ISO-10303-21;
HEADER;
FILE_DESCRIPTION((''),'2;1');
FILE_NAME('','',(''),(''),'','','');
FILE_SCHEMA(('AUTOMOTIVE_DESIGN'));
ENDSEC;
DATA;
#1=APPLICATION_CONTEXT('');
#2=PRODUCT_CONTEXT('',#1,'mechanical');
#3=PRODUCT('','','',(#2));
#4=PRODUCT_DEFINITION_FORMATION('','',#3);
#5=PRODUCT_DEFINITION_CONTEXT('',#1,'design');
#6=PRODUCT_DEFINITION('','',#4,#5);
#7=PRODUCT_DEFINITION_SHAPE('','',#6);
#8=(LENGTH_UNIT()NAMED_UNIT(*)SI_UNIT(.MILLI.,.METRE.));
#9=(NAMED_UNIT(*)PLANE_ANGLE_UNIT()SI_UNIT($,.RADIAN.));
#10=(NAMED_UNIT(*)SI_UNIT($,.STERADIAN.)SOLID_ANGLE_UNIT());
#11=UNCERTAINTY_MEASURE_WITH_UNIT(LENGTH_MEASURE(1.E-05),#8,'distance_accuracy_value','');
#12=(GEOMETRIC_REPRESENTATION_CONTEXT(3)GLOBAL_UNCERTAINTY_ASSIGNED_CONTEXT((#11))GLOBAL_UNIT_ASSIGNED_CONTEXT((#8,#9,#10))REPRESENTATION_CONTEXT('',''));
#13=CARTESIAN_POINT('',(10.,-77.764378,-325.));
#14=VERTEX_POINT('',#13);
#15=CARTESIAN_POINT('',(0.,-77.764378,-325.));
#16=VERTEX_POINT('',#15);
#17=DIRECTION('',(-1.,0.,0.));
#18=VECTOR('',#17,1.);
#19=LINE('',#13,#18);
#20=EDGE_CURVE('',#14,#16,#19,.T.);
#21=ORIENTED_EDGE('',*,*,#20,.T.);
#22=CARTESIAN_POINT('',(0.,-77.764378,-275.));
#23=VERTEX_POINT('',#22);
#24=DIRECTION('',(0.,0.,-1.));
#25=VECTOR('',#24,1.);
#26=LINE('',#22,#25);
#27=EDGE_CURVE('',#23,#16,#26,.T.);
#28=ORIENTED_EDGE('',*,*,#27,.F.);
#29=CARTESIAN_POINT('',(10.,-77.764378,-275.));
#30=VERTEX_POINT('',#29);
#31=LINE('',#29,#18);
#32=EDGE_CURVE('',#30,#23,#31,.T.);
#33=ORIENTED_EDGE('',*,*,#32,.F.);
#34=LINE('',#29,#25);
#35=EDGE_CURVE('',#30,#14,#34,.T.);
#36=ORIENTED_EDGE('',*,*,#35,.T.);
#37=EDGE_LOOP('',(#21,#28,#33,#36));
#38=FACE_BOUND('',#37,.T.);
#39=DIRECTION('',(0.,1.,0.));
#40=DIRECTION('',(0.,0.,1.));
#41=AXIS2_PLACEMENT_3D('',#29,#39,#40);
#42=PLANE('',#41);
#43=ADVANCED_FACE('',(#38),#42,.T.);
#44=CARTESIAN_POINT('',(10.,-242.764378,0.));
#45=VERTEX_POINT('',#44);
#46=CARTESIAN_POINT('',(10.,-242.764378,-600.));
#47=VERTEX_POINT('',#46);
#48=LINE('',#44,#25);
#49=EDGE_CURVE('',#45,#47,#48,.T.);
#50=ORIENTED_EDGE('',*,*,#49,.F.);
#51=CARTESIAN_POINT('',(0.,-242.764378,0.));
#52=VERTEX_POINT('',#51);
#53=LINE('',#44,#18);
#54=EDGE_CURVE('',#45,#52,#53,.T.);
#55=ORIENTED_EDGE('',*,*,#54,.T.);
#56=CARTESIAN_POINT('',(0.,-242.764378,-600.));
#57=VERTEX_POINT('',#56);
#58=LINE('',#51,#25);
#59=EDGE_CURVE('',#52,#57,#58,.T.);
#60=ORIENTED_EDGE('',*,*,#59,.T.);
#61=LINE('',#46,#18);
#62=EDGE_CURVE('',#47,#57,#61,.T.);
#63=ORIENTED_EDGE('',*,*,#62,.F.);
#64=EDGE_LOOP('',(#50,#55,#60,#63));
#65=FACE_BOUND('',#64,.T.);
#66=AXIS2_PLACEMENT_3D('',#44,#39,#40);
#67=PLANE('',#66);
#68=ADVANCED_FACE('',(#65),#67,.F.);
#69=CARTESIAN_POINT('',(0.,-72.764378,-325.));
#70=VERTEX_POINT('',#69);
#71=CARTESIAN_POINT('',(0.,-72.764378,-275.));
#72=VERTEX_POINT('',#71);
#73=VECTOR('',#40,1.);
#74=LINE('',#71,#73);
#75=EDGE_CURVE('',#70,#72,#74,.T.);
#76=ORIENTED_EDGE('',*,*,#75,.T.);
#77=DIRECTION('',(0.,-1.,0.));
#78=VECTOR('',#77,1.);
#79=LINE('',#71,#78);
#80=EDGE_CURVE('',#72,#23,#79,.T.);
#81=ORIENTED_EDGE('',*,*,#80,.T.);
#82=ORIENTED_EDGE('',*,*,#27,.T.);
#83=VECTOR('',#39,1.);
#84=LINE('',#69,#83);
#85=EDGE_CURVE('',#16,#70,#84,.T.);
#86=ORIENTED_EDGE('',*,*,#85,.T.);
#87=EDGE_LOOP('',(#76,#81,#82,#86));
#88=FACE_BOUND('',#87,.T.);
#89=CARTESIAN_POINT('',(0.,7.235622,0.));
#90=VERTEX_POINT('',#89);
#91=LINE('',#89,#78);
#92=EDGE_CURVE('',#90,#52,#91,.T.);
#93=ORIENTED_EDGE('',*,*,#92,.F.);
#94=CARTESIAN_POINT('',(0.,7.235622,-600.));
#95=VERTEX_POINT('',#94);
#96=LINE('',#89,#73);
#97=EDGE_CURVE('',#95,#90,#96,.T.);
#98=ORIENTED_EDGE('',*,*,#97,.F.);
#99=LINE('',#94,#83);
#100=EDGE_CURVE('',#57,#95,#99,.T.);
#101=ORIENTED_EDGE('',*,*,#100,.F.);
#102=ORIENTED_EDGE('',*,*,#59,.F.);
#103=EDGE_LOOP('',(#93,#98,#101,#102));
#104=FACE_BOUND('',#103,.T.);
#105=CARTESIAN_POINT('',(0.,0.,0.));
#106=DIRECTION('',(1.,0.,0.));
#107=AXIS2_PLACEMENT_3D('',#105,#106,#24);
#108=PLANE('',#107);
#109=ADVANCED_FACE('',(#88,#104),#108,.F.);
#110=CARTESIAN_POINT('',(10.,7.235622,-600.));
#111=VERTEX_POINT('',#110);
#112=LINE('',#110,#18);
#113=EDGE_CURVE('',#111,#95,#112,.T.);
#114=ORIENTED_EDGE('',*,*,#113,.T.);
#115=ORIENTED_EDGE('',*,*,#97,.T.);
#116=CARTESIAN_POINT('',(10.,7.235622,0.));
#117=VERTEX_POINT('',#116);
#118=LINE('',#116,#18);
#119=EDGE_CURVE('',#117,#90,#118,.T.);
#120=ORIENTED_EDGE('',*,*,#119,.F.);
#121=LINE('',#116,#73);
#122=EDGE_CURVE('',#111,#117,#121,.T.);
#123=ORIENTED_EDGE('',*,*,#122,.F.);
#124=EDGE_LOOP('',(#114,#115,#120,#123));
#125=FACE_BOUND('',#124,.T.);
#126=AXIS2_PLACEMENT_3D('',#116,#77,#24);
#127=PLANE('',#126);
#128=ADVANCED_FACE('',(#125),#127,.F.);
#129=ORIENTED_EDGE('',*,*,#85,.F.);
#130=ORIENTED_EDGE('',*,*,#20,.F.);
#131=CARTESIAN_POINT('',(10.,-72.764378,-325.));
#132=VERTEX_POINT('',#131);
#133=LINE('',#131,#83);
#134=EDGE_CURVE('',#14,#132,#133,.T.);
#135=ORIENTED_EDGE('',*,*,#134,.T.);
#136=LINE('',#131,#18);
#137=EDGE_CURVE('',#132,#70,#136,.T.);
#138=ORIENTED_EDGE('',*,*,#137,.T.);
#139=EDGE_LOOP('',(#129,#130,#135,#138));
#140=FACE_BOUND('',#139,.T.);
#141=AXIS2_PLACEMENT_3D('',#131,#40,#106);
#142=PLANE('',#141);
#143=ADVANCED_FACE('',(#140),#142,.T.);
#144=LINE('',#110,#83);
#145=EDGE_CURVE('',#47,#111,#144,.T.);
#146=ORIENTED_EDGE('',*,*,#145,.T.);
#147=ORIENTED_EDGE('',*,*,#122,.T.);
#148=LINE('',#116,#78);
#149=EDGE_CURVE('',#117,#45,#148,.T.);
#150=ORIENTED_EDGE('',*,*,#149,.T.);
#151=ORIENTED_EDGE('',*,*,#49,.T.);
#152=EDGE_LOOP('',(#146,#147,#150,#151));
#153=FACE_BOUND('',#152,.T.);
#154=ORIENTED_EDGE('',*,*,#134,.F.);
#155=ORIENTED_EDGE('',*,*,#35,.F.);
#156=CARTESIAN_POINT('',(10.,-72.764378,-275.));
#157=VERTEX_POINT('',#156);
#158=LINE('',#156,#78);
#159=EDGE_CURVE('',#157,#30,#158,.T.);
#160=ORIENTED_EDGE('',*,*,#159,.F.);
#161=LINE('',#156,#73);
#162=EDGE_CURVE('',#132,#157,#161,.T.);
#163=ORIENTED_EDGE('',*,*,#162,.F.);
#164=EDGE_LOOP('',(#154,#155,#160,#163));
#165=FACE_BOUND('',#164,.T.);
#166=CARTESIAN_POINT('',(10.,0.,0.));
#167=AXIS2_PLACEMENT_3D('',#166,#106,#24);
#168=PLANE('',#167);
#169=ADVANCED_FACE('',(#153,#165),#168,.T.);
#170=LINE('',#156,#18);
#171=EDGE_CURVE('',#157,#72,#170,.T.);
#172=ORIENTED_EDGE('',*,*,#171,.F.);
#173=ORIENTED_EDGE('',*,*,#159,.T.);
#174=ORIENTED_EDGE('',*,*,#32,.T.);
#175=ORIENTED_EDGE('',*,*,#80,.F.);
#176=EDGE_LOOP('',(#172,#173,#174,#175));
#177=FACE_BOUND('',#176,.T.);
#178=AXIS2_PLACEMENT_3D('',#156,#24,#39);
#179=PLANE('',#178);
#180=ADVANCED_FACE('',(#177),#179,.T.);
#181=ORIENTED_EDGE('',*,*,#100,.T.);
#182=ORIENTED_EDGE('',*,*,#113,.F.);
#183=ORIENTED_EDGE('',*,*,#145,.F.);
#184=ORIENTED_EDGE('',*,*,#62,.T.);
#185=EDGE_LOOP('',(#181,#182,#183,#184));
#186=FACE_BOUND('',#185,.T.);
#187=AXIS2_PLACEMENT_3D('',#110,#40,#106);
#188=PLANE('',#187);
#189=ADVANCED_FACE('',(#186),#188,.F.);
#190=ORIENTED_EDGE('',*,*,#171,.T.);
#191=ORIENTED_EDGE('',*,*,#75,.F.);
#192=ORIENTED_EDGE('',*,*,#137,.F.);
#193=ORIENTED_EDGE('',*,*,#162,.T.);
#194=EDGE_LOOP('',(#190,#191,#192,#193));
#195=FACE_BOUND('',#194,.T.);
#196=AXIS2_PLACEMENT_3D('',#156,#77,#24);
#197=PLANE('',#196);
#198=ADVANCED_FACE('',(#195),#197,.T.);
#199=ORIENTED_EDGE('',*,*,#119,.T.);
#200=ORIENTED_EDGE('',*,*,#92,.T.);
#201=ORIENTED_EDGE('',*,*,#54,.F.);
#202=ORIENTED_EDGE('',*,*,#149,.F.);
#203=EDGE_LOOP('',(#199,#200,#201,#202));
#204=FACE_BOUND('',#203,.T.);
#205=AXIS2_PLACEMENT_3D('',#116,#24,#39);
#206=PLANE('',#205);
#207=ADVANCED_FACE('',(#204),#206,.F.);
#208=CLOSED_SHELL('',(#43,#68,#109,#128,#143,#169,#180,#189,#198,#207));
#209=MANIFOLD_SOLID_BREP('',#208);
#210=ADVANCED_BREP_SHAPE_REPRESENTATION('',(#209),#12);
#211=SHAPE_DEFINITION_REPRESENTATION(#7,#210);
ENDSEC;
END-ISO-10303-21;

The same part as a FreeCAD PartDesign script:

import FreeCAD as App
import Part
import Sketcher

V = App.Vector

doc = App.newDocument("Part")
body = doc.addObject("PartDesign::Body", "Body")

# Sketch on YZ plane
sketch1 = body.newObject("Sketcher::SketchObject", "Sketch")
sketch1.AttachmentSupport = (doc.getObject("YZ_Plane"), [""])
sketch1.MapMode = "FlatFace"
sketch1.addGeometry(Part.LineSegment(V(7, 0, 0), V(-243, 0, 0)), False)
sketch1.addGeometry(Part.LineSegment(V(-243, 0, 0), V(-243, -600, 0)), False)
sketch1.addGeometry(Part.LineSegment(V(-243, -600, 0), V(7, -600, 0)), False)
sketch1.addGeometry(Part.LineSegment(V(7, -600, 0), V(7, 0, 0)), False)
sketch1.addGeometry(Part.LineSegment(V(-78, -325, 0), V(-78, -275, 0)), False)
sketch1.addGeometry(Part.LineSegment(V(-78, -275, 0), V(-73, -275, 0)), False)
sketch1.addGeometry(Part.LineSegment(V(-73, -275, 0), V(-73, -325, 0)), False)
sketch1.addGeometry(Part.LineSegment(V(-73, -325, 0), V(-78, -325, 0)), False)
sketch1.addConstraint(Sketcher.Constraint("Coincident", 0, 2, 1, 1))
sketch1.addConstraint(Sketcher.Constraint("Coincident", 1, 2, 2, 1))
sketch1.addConstraint(Sketcher.Constraint("Coincident", 2, 2, 3, 1))
sketch1.addConstraint(Sketcher.Constraint("Coincident", 3, 2, 0, 1))
sketch1.addConstraint(Sketcher.Constraint("Coincident", 4, 2, 5, 1))
sketch1.addConstraint(Sketcher.Constraint("Coincident", 5, 2, 6, 1))
sketch1.addConstraint(Sketcher.Constraint("Coincident", 6, 2, 7, 1))
sketch1.addConstraint(Sketcher.Constraint("Coincident", 7, 2, 4, 1))
sketch1.addConstraint(Sketcher.Constraint("Horizontal", 0))
sketch1.addConstraint(Sketcher.Constraint("Vertical", 1))
sketch1.addConstraint(Sketcher.Constraint("Horizontal", 2))
sketch1.addConstraint(Sketcher.Constraint("Vertical", 3))
sketch1.addConstraint(Sketcher.Constraint("Vertical", 4))
sketch1.addConstraint(Sketcher.Constraint("Horizontal", 5))
sketch1.addConstraint(Sketcher.Constraint("Vertical", 6))
sketch1.addConstraint(Sketcher.Constraint("Horizontal", 7))
sketch1.addConstraint(Sketcher.Constraint("PointOnObject", 0, 2, -1))
sketch1.addConstraint(Sketcher.Constraint("DistanceX", 0, 2, 0, 1, 250.0))
sketch1.addConstraint(Sketcher.Constraint("DistanceX", 5, 1, 5, 2, 5.0))
sketch1.addConstraint(Sketcher.Constraint("DistanceY", 1, 2, 1, 1, 600.0))
sketch1.addConstraint(Sketcher.Constraint("DistanceY", 4, 1, 4, 2, 50.0))
sketch1.addConstraint(Sketcher.Constraint("DistanceY", 4, 2, -1, 1, 275.0))
sketch1.addConstraint(Sketcher.Constraint("DistanceX", 4, 2, 3, 2, 85.0))
sketch1.addConstraint(Sketcher.Constraint("DistanceX", 0, 2, -1, 1, 242.764378))
pad1 = body.newObject("PartDesign::Pad", "Pad")
pad1.Profile = sketch1
pad1.Length = 10

doc.recompute()
